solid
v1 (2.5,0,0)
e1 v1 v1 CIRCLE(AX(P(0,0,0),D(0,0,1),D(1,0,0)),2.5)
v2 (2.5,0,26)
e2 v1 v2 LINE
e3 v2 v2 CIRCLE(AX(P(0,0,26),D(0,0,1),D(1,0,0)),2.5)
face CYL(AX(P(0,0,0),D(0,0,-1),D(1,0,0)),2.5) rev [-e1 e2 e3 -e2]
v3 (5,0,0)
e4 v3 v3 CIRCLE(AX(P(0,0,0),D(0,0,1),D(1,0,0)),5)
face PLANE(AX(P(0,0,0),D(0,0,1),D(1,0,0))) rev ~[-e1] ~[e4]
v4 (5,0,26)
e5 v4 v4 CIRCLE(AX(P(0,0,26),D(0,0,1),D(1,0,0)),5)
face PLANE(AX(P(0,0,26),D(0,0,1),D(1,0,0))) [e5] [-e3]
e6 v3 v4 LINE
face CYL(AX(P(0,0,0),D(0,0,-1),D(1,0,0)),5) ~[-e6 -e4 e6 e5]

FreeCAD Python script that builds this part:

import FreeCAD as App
import Part
import Sketcher
Q = App.Units.Quantity

doc = App.newDocument("Part")
body = doc.addObject("PartDesign::Body", "Body")

# Sketch on XY plane
sketch1 = body.newObject("Sketcher::SketchObject", "Sketch")
sketch1.AttachmentSupport = (doc.getObject("XY_Plane"), [""])
sketch1.MapMode = "FlatFace"
sketch1.addGeometry([
    Part.Circle(App.Vector(0, 0, 0), App.Vector(0, 0, 1), 5),
    Part.Circle(App.Vector(0, 0, 0), App.Vector(0, 0, 1), 2.5),
], False)
sketch1.addConstraint([
    Sketcher.Constraint("Coincident", 0, 3, -1, 1),
    Sketcher.Constraint("Coincident", 1, 3, -1, 1),
    Sketcher.Constraint("Diameter", 0, Q("10 mm")),
    Sketcher.Constraint("Diameter", 1, Q("5 mm")),
])
pad1 = body.newObject("PartDesign::Pad", "Pad")
pad1.Profile = sketch1
pad1.Length = 26

doc.recompute()
